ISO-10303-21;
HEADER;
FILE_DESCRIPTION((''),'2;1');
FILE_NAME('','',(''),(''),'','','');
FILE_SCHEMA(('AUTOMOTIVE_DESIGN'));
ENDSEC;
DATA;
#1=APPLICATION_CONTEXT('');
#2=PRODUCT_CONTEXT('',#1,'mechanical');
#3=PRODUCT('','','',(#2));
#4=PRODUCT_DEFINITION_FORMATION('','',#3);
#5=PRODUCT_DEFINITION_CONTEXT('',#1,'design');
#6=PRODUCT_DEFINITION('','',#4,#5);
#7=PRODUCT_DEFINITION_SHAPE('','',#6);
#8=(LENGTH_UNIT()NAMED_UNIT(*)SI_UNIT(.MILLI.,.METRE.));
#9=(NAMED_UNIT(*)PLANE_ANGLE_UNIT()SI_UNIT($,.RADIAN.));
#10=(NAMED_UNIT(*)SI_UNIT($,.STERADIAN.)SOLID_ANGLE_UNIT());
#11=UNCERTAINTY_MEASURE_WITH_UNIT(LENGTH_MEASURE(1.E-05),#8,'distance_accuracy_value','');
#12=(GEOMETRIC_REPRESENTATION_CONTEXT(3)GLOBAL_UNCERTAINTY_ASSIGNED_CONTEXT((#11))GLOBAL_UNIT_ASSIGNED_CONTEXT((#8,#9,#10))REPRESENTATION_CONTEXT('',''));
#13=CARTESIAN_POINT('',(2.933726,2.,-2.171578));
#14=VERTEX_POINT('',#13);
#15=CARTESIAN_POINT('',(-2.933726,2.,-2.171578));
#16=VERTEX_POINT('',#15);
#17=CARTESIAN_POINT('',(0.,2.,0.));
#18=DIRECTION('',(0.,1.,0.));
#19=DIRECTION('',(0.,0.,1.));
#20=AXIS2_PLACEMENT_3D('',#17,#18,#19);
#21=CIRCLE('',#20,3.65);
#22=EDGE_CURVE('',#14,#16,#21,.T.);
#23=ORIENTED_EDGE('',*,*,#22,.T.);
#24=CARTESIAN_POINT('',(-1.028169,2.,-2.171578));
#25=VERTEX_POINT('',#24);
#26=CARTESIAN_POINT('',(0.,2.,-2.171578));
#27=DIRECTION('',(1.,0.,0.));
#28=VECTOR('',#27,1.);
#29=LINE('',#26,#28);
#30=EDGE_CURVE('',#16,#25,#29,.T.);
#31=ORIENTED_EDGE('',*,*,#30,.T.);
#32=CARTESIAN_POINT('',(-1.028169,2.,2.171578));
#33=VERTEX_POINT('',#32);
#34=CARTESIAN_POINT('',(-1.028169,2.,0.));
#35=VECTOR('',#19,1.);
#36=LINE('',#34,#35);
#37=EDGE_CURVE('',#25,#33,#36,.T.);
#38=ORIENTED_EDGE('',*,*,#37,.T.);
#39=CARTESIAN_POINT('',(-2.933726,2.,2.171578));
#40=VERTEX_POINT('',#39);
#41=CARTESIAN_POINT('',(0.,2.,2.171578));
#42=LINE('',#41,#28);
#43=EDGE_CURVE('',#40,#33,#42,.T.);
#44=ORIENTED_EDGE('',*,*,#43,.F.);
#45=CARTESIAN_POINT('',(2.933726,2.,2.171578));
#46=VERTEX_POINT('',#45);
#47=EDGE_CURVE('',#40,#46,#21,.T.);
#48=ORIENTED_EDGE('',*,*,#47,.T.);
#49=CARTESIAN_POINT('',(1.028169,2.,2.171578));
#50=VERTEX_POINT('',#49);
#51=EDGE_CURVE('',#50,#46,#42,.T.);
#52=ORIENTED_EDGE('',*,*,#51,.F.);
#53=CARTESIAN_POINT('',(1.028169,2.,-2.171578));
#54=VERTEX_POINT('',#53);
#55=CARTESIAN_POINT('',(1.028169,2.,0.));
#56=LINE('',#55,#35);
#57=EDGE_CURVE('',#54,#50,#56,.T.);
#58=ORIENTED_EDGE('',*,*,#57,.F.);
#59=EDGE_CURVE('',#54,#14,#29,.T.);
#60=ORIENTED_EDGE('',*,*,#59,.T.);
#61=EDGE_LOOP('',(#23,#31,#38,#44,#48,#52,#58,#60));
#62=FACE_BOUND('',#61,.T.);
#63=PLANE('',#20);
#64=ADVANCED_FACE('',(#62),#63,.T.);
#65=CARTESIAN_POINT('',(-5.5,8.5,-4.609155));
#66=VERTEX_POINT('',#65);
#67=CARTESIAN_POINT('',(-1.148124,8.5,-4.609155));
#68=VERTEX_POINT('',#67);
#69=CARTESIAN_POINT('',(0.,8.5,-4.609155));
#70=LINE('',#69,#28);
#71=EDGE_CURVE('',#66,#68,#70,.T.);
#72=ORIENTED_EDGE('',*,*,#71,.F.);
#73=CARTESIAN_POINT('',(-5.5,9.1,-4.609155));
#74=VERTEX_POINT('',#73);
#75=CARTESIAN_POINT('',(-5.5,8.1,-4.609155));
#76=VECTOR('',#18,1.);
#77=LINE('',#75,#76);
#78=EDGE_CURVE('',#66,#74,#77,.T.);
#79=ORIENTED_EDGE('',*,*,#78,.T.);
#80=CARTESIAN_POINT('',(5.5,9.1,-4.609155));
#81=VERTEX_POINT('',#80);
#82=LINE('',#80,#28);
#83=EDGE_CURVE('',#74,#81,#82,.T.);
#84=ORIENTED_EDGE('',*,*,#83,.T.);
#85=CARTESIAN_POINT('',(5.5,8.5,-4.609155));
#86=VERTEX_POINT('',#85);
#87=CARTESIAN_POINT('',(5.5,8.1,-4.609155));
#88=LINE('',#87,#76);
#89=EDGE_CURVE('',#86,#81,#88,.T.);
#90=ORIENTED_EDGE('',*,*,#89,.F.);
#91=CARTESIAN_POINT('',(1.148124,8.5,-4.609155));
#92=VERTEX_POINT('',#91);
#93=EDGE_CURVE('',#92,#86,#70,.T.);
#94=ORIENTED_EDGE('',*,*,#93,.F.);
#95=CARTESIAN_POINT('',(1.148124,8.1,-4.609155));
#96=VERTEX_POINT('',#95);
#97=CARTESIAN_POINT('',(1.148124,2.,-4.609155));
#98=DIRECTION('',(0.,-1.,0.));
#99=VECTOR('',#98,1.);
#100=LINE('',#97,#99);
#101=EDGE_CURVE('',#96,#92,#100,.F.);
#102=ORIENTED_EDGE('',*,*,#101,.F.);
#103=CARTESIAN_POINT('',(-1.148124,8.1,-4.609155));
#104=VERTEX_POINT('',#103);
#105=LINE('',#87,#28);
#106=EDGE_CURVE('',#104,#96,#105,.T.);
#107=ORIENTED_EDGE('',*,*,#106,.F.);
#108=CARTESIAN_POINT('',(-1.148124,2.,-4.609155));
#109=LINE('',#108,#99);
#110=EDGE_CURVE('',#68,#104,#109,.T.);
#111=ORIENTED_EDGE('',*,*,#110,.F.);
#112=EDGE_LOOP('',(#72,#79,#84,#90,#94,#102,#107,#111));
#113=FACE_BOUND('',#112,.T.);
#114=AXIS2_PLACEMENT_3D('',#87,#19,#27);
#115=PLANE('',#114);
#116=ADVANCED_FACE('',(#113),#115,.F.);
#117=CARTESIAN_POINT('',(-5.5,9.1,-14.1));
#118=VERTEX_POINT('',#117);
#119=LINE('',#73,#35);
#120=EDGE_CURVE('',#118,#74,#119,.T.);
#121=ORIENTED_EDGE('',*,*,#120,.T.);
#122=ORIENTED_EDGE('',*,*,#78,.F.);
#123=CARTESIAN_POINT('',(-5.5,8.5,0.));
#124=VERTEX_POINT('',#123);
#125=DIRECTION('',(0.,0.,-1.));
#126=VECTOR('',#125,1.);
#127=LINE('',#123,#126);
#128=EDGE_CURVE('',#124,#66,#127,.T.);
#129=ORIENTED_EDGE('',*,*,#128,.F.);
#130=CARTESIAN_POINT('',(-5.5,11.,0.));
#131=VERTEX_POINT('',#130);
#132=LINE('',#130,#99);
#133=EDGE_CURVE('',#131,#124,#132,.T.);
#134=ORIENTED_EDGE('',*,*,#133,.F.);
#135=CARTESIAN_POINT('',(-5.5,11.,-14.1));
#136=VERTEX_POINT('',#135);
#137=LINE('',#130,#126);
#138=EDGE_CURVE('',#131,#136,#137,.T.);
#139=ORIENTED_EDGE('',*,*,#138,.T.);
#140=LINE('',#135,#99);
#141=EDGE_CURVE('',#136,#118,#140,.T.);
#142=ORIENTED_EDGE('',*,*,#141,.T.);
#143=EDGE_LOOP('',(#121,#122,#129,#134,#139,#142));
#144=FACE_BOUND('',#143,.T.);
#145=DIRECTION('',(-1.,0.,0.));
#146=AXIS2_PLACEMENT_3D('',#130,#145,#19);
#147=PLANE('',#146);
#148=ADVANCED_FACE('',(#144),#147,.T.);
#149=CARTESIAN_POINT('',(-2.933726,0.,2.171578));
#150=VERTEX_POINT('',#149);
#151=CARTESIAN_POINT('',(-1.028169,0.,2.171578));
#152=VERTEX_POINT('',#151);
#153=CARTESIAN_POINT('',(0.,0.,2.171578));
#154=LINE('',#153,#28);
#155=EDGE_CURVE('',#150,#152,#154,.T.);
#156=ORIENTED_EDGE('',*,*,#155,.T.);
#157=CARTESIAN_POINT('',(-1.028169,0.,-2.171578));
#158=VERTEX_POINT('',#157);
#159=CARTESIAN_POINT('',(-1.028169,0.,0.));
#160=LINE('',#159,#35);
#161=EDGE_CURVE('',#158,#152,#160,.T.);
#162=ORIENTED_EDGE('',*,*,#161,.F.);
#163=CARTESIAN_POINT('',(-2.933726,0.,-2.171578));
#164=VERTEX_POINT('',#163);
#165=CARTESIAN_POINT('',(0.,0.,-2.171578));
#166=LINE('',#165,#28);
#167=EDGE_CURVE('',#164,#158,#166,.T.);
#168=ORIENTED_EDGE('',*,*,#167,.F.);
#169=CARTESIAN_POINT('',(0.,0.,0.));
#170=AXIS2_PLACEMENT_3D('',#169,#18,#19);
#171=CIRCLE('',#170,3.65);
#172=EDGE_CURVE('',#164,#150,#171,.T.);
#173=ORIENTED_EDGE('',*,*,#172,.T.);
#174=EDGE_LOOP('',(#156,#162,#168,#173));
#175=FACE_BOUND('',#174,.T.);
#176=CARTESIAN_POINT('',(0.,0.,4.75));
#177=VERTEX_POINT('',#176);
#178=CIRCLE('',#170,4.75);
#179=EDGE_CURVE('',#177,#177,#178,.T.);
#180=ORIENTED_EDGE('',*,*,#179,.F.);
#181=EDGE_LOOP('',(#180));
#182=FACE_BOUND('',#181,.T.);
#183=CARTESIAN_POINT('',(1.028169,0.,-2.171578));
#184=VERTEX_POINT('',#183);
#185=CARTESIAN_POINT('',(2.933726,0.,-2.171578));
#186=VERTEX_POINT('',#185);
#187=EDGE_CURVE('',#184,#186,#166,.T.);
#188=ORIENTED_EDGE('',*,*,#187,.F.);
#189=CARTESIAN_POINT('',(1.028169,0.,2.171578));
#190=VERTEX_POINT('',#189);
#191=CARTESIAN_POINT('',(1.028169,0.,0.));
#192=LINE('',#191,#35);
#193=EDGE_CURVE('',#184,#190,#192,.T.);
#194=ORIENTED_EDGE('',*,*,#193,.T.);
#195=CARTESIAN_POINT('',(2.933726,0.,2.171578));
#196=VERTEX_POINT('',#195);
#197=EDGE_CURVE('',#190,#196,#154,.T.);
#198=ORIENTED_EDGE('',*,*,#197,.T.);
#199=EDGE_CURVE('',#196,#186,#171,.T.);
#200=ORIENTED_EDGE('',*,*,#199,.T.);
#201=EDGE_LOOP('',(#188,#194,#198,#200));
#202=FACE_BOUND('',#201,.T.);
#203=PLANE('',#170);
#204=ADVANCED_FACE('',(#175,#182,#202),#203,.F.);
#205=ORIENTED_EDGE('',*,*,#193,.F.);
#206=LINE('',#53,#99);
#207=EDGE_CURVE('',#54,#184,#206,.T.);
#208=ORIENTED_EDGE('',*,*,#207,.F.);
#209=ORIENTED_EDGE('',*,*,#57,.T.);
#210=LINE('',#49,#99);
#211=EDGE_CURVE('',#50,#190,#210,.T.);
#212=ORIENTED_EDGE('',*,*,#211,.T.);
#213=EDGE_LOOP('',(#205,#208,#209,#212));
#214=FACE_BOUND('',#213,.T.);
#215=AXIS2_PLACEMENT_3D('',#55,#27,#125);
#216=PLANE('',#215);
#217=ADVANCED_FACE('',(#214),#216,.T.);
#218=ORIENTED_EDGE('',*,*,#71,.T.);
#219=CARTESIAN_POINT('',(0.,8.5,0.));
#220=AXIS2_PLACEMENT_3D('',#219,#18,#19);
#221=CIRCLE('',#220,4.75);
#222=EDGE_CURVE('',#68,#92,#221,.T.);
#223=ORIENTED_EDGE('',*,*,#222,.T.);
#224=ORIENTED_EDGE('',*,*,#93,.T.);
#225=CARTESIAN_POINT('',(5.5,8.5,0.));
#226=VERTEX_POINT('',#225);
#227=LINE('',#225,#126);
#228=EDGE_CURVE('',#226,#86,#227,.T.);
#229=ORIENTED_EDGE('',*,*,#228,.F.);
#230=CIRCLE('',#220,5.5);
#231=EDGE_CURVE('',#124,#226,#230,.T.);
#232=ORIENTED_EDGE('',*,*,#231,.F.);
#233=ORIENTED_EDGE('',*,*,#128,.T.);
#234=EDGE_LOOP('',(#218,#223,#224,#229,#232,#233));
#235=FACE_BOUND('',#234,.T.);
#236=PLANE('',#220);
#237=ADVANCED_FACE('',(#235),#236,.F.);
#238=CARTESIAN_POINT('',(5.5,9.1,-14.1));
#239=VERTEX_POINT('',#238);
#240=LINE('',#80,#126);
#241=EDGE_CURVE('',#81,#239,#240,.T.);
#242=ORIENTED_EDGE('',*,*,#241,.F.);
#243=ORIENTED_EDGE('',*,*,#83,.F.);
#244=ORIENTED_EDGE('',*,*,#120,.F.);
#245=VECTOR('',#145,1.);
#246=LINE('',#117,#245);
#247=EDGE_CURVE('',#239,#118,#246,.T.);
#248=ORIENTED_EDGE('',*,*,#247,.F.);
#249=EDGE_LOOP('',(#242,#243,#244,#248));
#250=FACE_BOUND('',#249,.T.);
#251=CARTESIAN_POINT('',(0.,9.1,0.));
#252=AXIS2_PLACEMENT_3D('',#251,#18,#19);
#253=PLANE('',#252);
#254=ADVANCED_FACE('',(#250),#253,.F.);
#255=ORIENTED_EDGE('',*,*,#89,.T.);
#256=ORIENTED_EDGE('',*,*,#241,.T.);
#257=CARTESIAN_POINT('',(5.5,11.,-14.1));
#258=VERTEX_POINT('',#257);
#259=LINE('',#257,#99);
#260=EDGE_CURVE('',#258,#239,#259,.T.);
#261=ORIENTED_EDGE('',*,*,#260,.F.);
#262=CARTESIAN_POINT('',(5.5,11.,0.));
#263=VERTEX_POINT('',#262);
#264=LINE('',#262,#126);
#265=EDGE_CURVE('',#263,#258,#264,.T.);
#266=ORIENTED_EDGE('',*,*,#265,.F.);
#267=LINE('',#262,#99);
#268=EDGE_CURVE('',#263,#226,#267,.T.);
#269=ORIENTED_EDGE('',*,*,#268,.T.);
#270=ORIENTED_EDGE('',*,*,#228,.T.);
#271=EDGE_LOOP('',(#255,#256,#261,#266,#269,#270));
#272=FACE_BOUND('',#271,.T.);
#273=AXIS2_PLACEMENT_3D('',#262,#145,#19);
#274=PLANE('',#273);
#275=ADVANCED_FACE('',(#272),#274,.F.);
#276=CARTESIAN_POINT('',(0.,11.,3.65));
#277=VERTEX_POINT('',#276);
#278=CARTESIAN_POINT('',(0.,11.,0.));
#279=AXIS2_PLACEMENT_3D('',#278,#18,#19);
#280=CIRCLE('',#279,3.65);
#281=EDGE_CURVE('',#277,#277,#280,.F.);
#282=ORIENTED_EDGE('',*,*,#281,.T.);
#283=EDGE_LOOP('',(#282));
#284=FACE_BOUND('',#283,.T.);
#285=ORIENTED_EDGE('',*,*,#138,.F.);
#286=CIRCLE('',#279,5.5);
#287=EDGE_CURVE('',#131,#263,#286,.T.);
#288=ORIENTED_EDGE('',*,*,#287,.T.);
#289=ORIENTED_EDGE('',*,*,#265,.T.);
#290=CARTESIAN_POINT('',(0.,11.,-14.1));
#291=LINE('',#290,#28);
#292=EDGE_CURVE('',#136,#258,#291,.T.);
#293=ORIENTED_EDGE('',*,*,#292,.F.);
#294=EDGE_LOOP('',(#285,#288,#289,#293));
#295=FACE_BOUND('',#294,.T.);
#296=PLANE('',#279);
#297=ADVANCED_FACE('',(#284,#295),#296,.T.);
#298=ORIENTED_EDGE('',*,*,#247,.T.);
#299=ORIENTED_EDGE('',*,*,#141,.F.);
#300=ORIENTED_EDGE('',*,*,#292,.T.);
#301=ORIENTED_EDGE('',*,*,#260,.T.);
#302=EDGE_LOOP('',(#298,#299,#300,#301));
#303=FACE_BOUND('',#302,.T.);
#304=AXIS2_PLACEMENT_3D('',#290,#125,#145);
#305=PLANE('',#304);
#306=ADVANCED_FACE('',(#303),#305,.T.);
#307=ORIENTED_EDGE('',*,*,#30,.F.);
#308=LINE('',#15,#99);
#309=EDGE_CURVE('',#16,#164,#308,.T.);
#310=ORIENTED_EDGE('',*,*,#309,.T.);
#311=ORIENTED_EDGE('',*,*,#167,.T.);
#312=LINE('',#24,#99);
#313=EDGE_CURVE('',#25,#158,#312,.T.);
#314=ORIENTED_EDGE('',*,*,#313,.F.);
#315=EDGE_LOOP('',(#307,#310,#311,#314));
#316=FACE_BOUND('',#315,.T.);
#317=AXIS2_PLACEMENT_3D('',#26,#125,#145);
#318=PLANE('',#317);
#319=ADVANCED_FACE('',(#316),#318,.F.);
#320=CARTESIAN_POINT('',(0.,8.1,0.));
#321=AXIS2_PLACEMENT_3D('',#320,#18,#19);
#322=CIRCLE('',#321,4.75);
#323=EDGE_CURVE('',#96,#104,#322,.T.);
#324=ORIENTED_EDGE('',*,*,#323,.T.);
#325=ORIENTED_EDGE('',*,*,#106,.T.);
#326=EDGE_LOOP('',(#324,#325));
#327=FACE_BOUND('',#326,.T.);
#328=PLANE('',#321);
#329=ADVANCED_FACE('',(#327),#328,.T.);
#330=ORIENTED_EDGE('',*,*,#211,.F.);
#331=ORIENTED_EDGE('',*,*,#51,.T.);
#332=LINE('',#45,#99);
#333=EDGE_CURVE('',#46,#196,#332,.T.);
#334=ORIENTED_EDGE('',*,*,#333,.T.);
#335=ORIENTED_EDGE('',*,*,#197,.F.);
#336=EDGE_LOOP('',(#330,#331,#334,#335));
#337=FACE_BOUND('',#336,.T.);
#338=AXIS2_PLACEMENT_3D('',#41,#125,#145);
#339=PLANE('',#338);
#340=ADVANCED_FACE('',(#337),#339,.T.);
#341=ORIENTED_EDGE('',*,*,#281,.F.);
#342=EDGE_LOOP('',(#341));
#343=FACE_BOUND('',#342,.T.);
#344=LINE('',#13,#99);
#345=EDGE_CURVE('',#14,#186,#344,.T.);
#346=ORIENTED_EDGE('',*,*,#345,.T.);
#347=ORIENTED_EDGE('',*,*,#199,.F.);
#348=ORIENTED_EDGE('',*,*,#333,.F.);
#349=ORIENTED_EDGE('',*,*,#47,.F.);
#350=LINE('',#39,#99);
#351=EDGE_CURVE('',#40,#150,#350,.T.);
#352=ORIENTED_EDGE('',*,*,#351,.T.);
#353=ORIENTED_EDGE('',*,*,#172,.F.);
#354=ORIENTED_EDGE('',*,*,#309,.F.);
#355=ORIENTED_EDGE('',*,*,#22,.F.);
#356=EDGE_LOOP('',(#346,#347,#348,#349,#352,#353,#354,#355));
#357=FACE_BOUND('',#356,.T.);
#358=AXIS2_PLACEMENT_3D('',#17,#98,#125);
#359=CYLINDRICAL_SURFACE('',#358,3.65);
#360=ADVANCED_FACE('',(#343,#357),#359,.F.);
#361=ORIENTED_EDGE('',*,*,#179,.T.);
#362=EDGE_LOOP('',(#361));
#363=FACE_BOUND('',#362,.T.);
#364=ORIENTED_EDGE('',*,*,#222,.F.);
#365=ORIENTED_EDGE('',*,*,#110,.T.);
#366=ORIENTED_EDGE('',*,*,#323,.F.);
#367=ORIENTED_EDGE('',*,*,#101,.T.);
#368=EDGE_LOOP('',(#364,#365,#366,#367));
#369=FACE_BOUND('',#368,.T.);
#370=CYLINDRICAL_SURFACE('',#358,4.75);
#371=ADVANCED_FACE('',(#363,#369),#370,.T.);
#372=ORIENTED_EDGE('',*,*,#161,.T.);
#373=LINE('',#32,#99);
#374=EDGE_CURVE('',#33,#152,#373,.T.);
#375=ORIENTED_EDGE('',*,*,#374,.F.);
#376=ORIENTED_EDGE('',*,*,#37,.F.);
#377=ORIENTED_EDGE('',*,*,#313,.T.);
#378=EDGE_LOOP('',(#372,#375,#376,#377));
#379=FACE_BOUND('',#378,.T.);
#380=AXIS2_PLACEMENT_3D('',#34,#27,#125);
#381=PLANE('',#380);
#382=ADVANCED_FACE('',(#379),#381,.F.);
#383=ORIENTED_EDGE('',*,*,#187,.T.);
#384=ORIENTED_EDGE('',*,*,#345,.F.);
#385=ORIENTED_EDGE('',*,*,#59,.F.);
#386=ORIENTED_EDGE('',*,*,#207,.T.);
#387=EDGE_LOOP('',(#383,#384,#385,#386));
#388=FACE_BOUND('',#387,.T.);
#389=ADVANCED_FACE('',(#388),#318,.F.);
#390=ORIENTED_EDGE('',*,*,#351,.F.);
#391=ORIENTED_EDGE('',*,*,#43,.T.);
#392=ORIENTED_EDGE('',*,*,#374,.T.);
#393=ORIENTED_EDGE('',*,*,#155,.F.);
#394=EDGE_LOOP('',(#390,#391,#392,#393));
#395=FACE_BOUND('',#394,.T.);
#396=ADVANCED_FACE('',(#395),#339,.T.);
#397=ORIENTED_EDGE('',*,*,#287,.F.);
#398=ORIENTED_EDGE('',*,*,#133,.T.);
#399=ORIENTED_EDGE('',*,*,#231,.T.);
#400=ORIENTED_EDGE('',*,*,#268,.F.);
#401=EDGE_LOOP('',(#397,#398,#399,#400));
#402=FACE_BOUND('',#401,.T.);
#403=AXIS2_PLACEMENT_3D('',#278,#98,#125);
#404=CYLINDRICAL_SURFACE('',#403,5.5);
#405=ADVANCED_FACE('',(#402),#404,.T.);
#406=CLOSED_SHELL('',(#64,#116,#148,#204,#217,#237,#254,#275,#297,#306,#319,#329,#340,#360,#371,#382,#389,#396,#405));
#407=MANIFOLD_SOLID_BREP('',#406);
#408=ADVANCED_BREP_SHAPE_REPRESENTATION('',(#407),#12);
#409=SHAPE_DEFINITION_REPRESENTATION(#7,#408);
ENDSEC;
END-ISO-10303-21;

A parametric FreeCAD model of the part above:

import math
import FreeCAD as App
import Part
import Sketcher

doc = App.newDocument("Part")
body = doc.addObject("PartDesign::Body", "Body")

sketch1 = doc.addObject("Sketcher::SketchObject", "Sketch")
body.addObject(sketch1)
sketch1.AttachmentSupport = (doc.XZ_Plane, [""])
sketch1.MapMode = "FlatFace"
sketch1.addGeometry([
    Part.Circle(App.Vector(0, 0, 0), App.Vector(0, 0, 1), 4.75),
    Part.ArcOfCircle(Part.Circle(App.Vector(0, 0, 0), App.Vector(0, 0, 1), 3.65), math.radians(-36.509268), math.radians(36.509268)),
    Part.LineSegment(App.Vector(2.933726, 2.171578, 0), App.Vector(1.028169, 2.171578, 0)),
    Part.LineSegment(App.Vector(1.028169, 2.171578, 0), App.Vector(1.028169, -2.171578, 0)),
    Part.LineSegment(App.Vector(1.028169, -2.171578, 0), App.Vector(2.933726, -2.171578, 0)),
    Part.ArcOfCircle(Part.Circle(App.Vector(0, 0, 0), App.Vector(0, 0, 1), 3.65), math.radians(143.490732), math.radians(216.509268)),
    Part.LineSegment(App.Vector(-2.933726, -2.171578, 0), App.Vector(-1.028169, -2.171578, 0)),
    Part.LineSegment(App.Vector(-1.028169, -2.171578, 0), App.Vector(-1.028169, 2.171578, 0)),
    Part.LineSegment(App.Vector(-1.028169, 2.171578, 0), App.Vector(-2.933726, 2.171578, 0)),
], False)
sketch1.addConstraint([
    Sketcher.Constraint("Coincident", 1, 2, 2, 1),
    Sketcher.Constraint("Coincident", 2, 2, 3, 1),
    Sketcher.Constraint("Coincident", 3, 2, 4, 1),
    Sketcher.Constraint("Coincident", 4, 2, 1, 1),
    Sketcher.Constraint("Coincident", 5, 2, 6, 1),
    Sketcher.Constraint("Coincident", 6, 2, 7, 1),
    Sketcher.Constraint("Coincident", 7, 2, 8, 1),
    Sketcher.Constraint("Coincident", 8, 2, 5, 1),
    Sketcher.Constraint("Horizontal", 2),
    Sketcher.Constraint("Vertical", 3),
    Sketcher.Constraint("Horizontal", 4),
    Sketcher.Constraint("Horizontal", 6),
    Sketcher.Constraint("Vertical", 7),
    Sketcher.Constraint("Horizontal", 8),
    Sketcher.Constraint("Coincident", 0, 3, -1, 1),
    Sketcher.Constraint("Coincident", 1, 3, -1, 1),
    Sketcher.Constraint("Coincident", 5, 3, -1, 1),
    Sketcher.Constraint("Equal", 1, 5),
    Sketcher.Constraint("Symmetric", 2, 2, 6, 2, -1, 1),
    Sketcher.Constraint("Horizontal", 4, 2, 5, 2),
    Sketcher.Constraint("Horizontal", 2, 2, 7, 2),
    Sketcher.Constraint("Diameter", 0, 9.5),
    Sketcher.Constraint("Radius", 1, 3.65),
    Sketcher.Constraint("DistanceX", 2, 2, 2, 1, 1.905557),
    Sketcher.Constraint("DistanceY", 3, 2, 3, 1, 4.343156),
])
pad1 = doc.addObject("PartDesign::Pad", "Pad")
body.addObject(pad1)
pad1.Profile = sketch1
pad1.Length = 2
pad1.Reversed = True

sketch2 = doc.addObject("Sketcher::SketchObject", "Sketch001")
body.addObject(sketch2)
sketch2.AttachmentSupport = (doc.XZ_Plane, [""])
sketch2.MapMode = "FlatFace"
sketch2.AttachmentOffset = App.Placement(App.Vector(0, 0, -2), App.Rotation())
sketch2.addGeometry([
    Part.Circle(App.Vector(0, 0, 0), App.Vector(0, 0, 1), 4.75),
    Part.Circle(App.Vector(0, 0, 0), App.Vector(0, 0, 1), 3.65),
], False)
sketch2.addConstraint([
    Sketcher.Constraint("Coincident", 0, 3, -1, 1),
    Sketcher.Constraint("Coincident", 1, 3, -1, 1),
    Sketcher.Constraint("Diameter", 0, 9.5),
    Sketcher.Constraint("Diameter", 1, 7.3),
])
pad2 = doc.addObject("PartDesign::Pad", "Pad001")
body.addObject(pad2)
pad2.Profile = sketch2
pad2.Length = 6.5
pad2.Reversed = True

sketch3 = doc.addObject("Sketcher::SketchObject", "Sketch002")
body.addObject(sketch3)
sketch3.AttachmentSupport = (doc.XZ_Plane, [""])
sketch3.MapMode = "FlatFace"
sketch3.AttachmentOffset = App.Placement(App.Vector(0, 0, -8.5), App.Rotation())
sketch3.addGeometry([
    Part.ArcOfCircle(Part.Circle(App.Vector(0, 0, 0), App.Vector(0, 0, 1), 5.5), math.radians(0), math.radians(180)),
    Part.LineSegment(App.Vector(5.5, 0, 0), App.Vector(5.5, -14.1, 0)),
    Part.LineSegment(App.Vector(5.5, -14.1, 0), App.Vector(-5.5, -14.1, 0)),
    Part.LineSegment(App.Vector(-5.5, -14.1, 0), App.Vector(-5.5, 0, 0)),
    Part.Circle(App.Vector(0, 0, 0), App.Vector(0, 0, 1), 3.65),
], False)
sketch3.addConstraint([
    Sketcher.Constraint("Tangent", 0, 1, 1, 1),
    Sketcher.Constraint("Coincident", 1, 2, 2, 1),
    Sketcher.Constraint("Coincident", 2, 2, 3, 1),
    Sketcher.Constraint("Tangent", 3, 2, 0, 2),
    Sketcher.Constraint("Vertical", 1),
    Sketcher.Constraint("Horizontal", 2),
    Sketcher.Constraint("Vertical", 3),
    Sketcher.Constraint("Coincident", 0, 3, -1, 1),
    Sketcher.Constraint("Coincident", 4, 3, -1, 1),
    Sketcher.Constraint("Diameter", 4, 7.3),
    Sketcher.Constraint("Radius", 0, 5.5),
    Sketcher.Constraint("DistanceY", 1, 2, 1, 1, 14.1),
])
pad3 = doc.addObject("PartDesign::Pad", "Pad002")
body.addObject(pad3)
pad3.Profile = sketch3
pad3.Length = 2.5
pad3.Reversed = True

sketch4 = doc.addObject("Sketcher::SketchObject", "Sketch003")
body.addObject(sketch4)
sketch4.AttachmentSupport = (doc.XZ_Plane, [""])
sketch4.MapMode = "FlatFace"
sketch4.AttachmentOffset = App.Placement(App.Vector(0, 0, -9.1), App.Rotation())
sketch4.addGeometry([
    Part.LineSegment(App.Vector(-5.5, -14.1, 0), App.Vector(-5.5, -4.609155, 0)),
    Part.LineSegment(App.Vector(-5.5, -4.609155, 0), App.Vector(5.5, -4.609155, 0)),
    Part.LineSegment(App.Vector(5.5, -4.609155, 0), App.Vector(5.5, -14.1, 0)),
    Part.LineSegment(App.Vector(5.5, -14.1, 0), App.Vector(-5.5, -14.1, 0)),
], False)
sketch4.addConstraint([
    Sketcher.Constraint("Coincident", 0, 2, 1, 1),
    Sketcher.Constraint("Coincident", 1, 2, 2, 1),
    Sketcher.Constraint("Coincident", 2, 2, 3, 1),
    Sketcher.Constraint("Coincident", 3, 2, 0, 1),
    Sketcher.Constraint("Vertical", 0),
    Sketcher.Constraint("Horizontal", 1),
    Sketcher.Constraint("Vertical", 2),
    Sketcher.Constraint("Horizontal", 3),
    Sketcher.Constraint("DistanceX", 1, 1, 1, 2, 11.0),
    Sketcher.Constraint("DistanceX", 0, 2, -1, 1, 5.5),
    Sketcher.Constraint("DistanceY", 2, 2, -1, 1, 14.1),
    Sketcher.Constraint("DistanceY", 0, 1, 0, 2, 9.490845),
])
pocket1 = doc.addObject("PartDesign::Pocket", "Pocket")
body.addObject(pocket1)
pocket1.Profile = sketch4
pocket1.Length = 1
pocket1.Reversed = True

doc.recompute()
